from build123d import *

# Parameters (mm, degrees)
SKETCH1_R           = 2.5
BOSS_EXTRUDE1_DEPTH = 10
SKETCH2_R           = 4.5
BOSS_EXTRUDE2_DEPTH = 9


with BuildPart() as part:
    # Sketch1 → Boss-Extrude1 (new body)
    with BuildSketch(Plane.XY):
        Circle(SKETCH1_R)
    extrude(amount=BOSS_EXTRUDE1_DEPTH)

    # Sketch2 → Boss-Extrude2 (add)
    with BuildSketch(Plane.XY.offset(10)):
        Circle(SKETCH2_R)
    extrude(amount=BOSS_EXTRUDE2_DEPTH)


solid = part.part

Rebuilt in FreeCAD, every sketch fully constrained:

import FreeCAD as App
import Part
import Sketcher
Q = App.Units.Quantity

doc = App.newDocument("Part")
body = doc.addObject("PartDesign::Body", "Body")

sketch1 = doc.addObject("Sketcher::SketchObject", "Sketch")
body.addObject(sketch1)
sketch1.AttachmentSupport = (doc.XY_Plane, [""])
sketch1.MapMode = "FlatFace"
sketch1.addGeometry(Part.Circle(App.Vector(0, 0, 0), App.Vector(0, 0, 1), 2.5), False)
sketch1.addConstraint(Sketcher.Constraint("Coincident", 0, 3, -1, 1))
sketch1.addConstraint(Sketcher.Constraint("Diameter", 0, Q("5 mm")))
pad1 = doc.addObject("PartDesign::Pad", "Pad")
body.addObject(pad1)
pad1.Profile = sketch1
pad1.Length = 10

sketch2 = doc.addObject("Sketcher::SketchObject", "Sketch001")
body.addObject(sketch2)
sketch2.AttachmentSupport = (doc.XY_Plane, [""])
sketch2.MapMode = "FlatFace"
sketch2.AttachmentOffset = App.Placement(App.Vector(0, 0, 10), App.Rotation())
sketch2.addGeometry(Part.Circle(App.Vector(0, 0, 0), App.Vector(0, 0, 1), 4.5), False)
sketch2.addConstraint(Sketcher.Constraint("Coincident", 0, 3, -1, 1))
sketch2.addConstraint(Sketcher.Constraint("Diameter", 0, Q("9 mm")))
pad2 = doc.addObject("PartDesign::Pad", "Pad001")
body.addObject(pad2)
pad2.Profile = sketch2
pad2.Length = 9

doc.recompute()
